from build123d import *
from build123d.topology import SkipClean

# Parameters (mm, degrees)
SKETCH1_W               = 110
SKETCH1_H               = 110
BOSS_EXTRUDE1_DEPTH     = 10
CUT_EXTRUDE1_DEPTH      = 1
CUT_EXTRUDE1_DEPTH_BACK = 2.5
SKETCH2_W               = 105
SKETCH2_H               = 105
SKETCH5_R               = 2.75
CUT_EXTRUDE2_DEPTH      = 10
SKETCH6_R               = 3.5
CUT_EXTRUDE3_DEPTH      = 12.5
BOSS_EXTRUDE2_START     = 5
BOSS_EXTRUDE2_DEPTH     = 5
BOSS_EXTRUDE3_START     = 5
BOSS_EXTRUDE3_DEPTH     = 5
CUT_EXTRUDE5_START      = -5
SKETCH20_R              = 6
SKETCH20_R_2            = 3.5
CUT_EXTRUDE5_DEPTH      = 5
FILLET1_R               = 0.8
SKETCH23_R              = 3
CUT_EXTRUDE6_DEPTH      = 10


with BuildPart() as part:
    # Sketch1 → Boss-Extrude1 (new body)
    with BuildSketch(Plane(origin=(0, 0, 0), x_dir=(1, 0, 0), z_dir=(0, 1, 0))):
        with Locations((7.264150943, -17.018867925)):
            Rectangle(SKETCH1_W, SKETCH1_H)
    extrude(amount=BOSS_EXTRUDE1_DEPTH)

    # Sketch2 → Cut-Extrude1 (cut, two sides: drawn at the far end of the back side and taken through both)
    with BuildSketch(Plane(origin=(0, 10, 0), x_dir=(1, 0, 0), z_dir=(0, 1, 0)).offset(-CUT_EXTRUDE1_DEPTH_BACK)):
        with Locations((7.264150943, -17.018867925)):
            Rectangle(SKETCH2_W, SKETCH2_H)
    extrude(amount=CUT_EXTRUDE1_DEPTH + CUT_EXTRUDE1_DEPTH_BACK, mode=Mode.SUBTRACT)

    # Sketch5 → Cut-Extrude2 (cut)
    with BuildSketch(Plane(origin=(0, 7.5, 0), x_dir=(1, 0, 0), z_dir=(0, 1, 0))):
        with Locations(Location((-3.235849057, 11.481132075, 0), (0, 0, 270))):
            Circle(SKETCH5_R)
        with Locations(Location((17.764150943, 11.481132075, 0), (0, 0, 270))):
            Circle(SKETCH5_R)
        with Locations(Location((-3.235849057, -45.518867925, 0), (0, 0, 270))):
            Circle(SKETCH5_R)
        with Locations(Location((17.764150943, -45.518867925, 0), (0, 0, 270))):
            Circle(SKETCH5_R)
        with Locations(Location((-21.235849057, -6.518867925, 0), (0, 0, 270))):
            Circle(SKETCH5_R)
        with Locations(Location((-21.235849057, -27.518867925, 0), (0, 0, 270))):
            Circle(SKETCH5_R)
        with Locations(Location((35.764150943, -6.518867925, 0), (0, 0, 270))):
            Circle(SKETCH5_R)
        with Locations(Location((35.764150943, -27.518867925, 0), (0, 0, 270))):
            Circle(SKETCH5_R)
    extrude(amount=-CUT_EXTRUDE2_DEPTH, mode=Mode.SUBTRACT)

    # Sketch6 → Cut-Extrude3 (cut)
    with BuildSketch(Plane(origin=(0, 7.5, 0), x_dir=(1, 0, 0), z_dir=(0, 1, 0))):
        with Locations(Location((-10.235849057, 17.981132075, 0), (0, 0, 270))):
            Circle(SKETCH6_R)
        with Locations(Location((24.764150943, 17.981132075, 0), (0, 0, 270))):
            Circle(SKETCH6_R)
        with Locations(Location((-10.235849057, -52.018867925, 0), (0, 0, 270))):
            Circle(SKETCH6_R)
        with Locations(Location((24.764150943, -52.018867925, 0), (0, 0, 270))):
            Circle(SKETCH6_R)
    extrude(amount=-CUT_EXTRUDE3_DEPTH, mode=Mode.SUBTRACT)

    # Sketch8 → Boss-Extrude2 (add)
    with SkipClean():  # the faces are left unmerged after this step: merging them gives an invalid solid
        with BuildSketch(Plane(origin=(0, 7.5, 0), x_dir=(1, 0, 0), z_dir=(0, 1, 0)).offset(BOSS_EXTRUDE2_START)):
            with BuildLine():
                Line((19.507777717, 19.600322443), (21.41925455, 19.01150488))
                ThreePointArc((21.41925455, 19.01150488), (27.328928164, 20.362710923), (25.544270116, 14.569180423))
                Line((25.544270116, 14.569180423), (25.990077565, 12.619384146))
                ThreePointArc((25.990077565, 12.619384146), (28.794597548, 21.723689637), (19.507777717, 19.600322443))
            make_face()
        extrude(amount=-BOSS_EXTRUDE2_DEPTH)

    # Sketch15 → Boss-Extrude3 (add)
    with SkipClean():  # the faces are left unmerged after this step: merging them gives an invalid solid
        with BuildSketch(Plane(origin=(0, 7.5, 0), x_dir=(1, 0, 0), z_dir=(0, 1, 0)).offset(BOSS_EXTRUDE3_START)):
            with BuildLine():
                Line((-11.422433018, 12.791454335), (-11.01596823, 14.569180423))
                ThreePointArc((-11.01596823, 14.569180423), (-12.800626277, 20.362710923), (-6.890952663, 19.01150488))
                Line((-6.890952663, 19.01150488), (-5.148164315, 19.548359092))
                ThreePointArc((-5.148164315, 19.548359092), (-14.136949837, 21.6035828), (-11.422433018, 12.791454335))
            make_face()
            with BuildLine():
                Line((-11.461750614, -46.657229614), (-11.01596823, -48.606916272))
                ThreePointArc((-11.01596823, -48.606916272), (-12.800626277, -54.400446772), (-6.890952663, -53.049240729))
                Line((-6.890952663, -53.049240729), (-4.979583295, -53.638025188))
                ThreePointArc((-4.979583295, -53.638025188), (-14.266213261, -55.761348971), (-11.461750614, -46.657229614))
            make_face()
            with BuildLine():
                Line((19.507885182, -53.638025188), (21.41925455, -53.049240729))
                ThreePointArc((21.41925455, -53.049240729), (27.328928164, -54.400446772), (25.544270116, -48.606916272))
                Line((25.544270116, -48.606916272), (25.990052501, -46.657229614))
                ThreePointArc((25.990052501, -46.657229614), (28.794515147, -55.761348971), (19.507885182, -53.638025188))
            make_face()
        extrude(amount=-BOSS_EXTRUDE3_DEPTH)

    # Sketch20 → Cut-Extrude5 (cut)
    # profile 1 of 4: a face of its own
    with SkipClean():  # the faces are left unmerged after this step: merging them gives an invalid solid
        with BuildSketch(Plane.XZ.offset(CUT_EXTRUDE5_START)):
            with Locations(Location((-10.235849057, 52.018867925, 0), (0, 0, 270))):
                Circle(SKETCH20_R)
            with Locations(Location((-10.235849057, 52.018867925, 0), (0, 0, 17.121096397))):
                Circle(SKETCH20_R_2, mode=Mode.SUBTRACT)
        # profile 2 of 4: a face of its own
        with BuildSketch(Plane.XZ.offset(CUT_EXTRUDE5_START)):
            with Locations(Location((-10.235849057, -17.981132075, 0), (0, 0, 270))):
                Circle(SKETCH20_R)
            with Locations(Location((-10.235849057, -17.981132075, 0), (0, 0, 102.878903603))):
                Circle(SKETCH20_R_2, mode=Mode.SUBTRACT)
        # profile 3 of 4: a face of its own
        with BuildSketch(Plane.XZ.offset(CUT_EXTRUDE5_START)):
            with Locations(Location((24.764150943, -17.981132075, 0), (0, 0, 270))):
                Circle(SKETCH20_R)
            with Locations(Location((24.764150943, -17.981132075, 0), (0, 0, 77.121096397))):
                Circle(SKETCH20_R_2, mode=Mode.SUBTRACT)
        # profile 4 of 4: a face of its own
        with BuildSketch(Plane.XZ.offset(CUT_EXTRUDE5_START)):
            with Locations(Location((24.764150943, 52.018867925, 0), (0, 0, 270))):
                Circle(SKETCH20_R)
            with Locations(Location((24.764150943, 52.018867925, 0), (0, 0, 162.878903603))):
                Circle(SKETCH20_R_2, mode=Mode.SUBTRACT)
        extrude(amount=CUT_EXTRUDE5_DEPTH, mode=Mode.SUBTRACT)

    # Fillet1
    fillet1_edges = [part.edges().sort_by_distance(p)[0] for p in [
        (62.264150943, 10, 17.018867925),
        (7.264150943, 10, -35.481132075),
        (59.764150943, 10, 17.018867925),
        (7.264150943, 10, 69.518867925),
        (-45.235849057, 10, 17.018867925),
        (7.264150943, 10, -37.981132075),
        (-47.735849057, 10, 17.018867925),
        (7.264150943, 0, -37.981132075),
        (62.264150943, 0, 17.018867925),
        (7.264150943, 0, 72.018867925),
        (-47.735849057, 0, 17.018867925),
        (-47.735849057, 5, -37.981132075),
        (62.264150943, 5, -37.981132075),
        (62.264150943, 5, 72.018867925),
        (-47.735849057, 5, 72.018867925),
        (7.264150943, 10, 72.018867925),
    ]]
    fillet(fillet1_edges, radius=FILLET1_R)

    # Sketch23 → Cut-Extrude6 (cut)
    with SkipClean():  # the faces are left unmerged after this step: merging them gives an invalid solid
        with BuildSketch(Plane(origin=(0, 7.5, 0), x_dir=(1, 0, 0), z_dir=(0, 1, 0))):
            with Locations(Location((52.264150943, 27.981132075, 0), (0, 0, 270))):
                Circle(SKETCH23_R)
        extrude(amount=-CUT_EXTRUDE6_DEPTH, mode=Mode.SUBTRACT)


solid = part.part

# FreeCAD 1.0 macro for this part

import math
import FreeCAD as App
import Part
import Sketcher

V = App.Vector


def edges_at(feature, points):
    """Names of the edges that pass closest to the given points."""
    edges = feature.Shape.Edges
    near = lambda p: min(range(len(edges)), key=lambda i: edges[i].distToShape(Part.Vertex(*p))[0])
    return sorted({f"Edge{near(p) + 1}" for p in points})

doc = App.newDocument("Part")
body = doc.addObject("PartDesign::Body", "Body")

# Sketch on XZ plane
sketch1 = doc.addObject("Sketcher::SketchObject", "Sketch")
body.addObject(sketch1)
sketch1.AttachmentSupport = (doc.XZ_Plane, [""])
sketch1.MapMode = "FlatFace"
sketch1.addGeometry([
    Part.LineSegment(V(-48, -38, 0), V(-48, 72, 0)),
    Part.LineSegment(V(-48, 72, 0), V(62, 72, 0)),
    Part.LineSegment(V(62, 72, 0), V(62, -38, 0)),
    Part.LineSegment(V(62, -38, 0), V(-48, -38, 0)),
], False)
sketch1.addConstraint([
    Sketcher.Constraint("Coincident", 0, 2, 1, 1),
    Sketcher.Constraint("Coincident", 1, 2, 2, 1),
    Sketcher.Constraint("Coincident", 2, 2, 3, 1),
    Sketcher.Constraint("Coincident", 3, 2, 0, 1),
    Sketcher.Constraint("Vertical", 0),
    Sketcher.Constraint("Horizontal", 1),
    Sketcher.Constraint("Vertical", 2),
    Sketcher.Constraint("Horizontal", 3),
    Sketcher.Constraint("Equal", 3, 0),
    Sketcher.Constraint("DistanceX", 1, 1, 1, 2, 110.0),
    Sketcher.Constraint("DistanceX", 0, 2, -1, 1, 47.735849),
    Sketcher.Constraint("DistanceY", -1, 1, 0, 2, 72.018868),
])
pad1 = doc.addObject("PartDesign::Pad", "Pad")
body.addObject(pad1)
pad1.Profile = sketch1
pad1.Length = 10
pad1.Reversed = True

# Sketch on XZ plane
sketch2 = doc.addObject("Sketcher::SketchObject", "Sketch001")
body.addObject(sketch2)
sketch2.AttachmentSupport = (doc.XZ_Plane, [""])
sketch2.MapMode = "FlatFace"
sketch2.AttachmentOffset = App.Placement(V(0, 0, -10), App.Rotation())
sketch2.addGeometry([
    Part.LineSegment(V(-45, -35, 0), V(-45, 70, 0)),
    Part.LineSegment(V(-45, 70, 0), V(60, 70, 0)),
    Part.LineSegment(V(60, 70, 0), V(60, -35, 0)),
    Part.LineSegment(V(60, -35, 0), V(-45, -35, 0)),
], False)
sketch2.addConstraint([
    Sketcher.Constraint("Coincident", 0, 2, 1, 1),
    Sketcher.Constraint("Coincident", 1, 2, 2, 1),
    Sketcher.Constraint("Coincident", 2, 2, 3, 1),
    Sketcher.Constraint("Coincident", 3, 2, 0, 1),
    Sketcher.Constraint("Vertical", 0),
    Sketcher.Constraint("Horizontal", 1),
    Sketcher.Constraint("Vertical", 2),
    Sketcher.Constraint("Horizontal", 3),
    Sketcher.Constraint("Equal", 3, 0),
    Sketcher.Constraint("DistanceX", 1, 1, 1, 2, 105.0),
    Sketcher.Constraint("DistanceX", 0, 2, -1, 1, 45.235849),
    Sketcher.Constraint("DistanceY", -1, 1, 0, 2, 69.518868),
])
pocket1 = doc.addObject("PartDesign::Pocket", "Pocket")
body.addObject(pocket1)
pocket1.Profile = sketch2
pocket1.Type = "TwoLengths"
pocket1.Length = 1
pocket1.Length2 = 2.5

# Sketch on XZ plane
sketch3 = doc.addObject("Sketcher::SketchObject", "Sketch002")
body.addObject(sketch3)
sketch3.AttachmentSupport = (doc.XZ_Plane, [""])
sketch3.MapMode = "FlatFace"
sketch3.AttachmentOffset = App.Placement(V(0, 0, -7.5), App.Rotation())
sketch3.addGeometry([
    Part.Circle(V(-3.2, -11.5, 0), V(0, 0, 1), 2.8),  # 0
    Part.Circle(V(17.8, -11.5, 0), V(0, 0, 1), 2.8),  # 1
    Part.Circle(V(-3.2, 45.5, 0), V(0, 0, 1), 2.8),  # 2
    Part.Circle(V(17.8, 45.5, 0), V(0, 0, 1), 2.8),  # 3
    Part.Circle(V(-21.2, 6.5, 0), V(0, 0, 1), 2.8),  # 4
    Part.Circle(V(-21.2, 27.5, 0), V(0, 0, 1), 2.8),  # 5
    Part.Circle(V(35.8, 6.5, 0), V(0, 0, 1), 2.8),  # 6
    Part.Circle(V(35.8, 27.5, 0), V(0, 0, 1), 2.8),  # 7
], False)
sketch3.addConstraint([
    Sketcher.Constraint("Equal", 0, 1),
    Sketcher.Constraint("Equal", 1, 2),
    Sketcher.Constraint("Equal", 2, 3),
    Sketcher.Constraint("Equal", 3, 4),
    Sketcher.Constraint("Equal", 4, 5),
    Sketcher.Constraint("Equal", 5, 6),
    Sketcher.Constraint("Equal", 6, 7),
    Sketcher.Constraint("Horizontal", 0, 3, 1, 3),
    Sketcher.Constraint("Horizontal", 2, 3, 3, 3),
    Sketcher.Constraint("Horizontal", 4, 3, 6, 3),
    Sketcher.Constraint("Horizontal", 5, 3, 7, 3),
    Sketcher.Constraint("Vertical", 0, 3, 2, 3),
    Sketcher.Constraint("Vertical", 1, 3, 3, 3),
    Sketcher.Constraint("Vertical", 4, 3, 5, 3),
    Sketcher.Constraint("Vertical", 6, 3, 7, 3),
    Sketcher.Constraint("Diameter", 0, 5.5),
    Sketcher.Constraint("DistanceX", 0, 3, 1, 3, 21.0),
    Sketcher.Constraint("DistanceY", 0, 3, 2, 3, 57.0),
    Sketcher.Constraint("DistanceX", 4, 3, 0, 3, 18.0),
    Sketcher.Constraint("DistanceY", 0, 3, 4, 3, 18.0),
    Sketcher.Constraint("DistanceY", 4, 3, 5, 3, 21.0),
    Sketcher.Constraint("DistanceX", 1, 3, 6, 3, 18.0),
    Sketcher.Constraint("DistanceX", 0, 3, -1, 1, 3.235849),
    Sketcher.Constraint("DistanceY", 0, 3, -1, 1, 11.481132),
])
pocket2 = doc.addObject("PartDesign::Pocket", "Pocket001")
body.addObject(pocket2)
pocket2.Profile = sketch3
pocket2.Length = 10
pocket2.Reversed = True

# Sketch on XZ plane
sketch4 = doc.addObject("Sketcher::SketchObject", "Sketch003")
body.addObject(sketch4)
sketch4.AttachmentSupport = (doc.XZ_Plane, [""])
sketch4.MapMode = "FlatFace"
sketch4.AttachmentOffset = App.Placement(V(0, 0, -7.5), App.Rotation())
sketch4.addGeometry([
    Part.Circle(V(-10.2, -18, 0), V(0, 0, 1), 3.5),
    Part.Circle(V(24.8, -18, 0), V(0, 0, 1), 3.5),
    Part.Circle(V(-10.2, 52, 0), V(0, 0, 1), 3.5),
    Part.Circle(V(24.8, 52, 0), V(0, 0, 1), 3.5),
], False)
sketch4.addConstraint([
    Sketcher.Constraint("Equal", 0, 1),
    Sketcher.Constraint("Equal", 1, 2),
    Sketcher.Constraint("Equal", 2, 3),
    Sketcher.Constraint("Horizontal", 0, 3, 1, 3),
    Sketcher.Constraint("Horizontal", 2, 3, 3, 3),
    Sketcher.Constraint("Vertical", 0, 3, 2, 3),
    Sketcher.Constraint("Vertical", 1, 3, 3, 3),
    Sketcher.Constraint("Diameter", 0, 7.0),
    Sketcher.Constraint("DistanceX", 0, 3, 1, 3, 35.0),
    Sketcher.Constraint("DistanceY", 0, 3, 2, 3, 70.0),
    Sketcher.Constraint("DistanceX", 0, 3, -1, 1, 10.235849),
    Sketcher.Constraint("DistanceY", 0, 3, -1, 1, 17.981132),
])
pocket3 = doc.addObject("PartDesign::Pocket", "Pocket002")
body.addObject(pocket3)
pocket3.Profile = sketch4
pocket3.Length = 12.5
pocket3.Reversed = True

# Sketch on XZ plane
sketch5 = doc.addObject("Sketcher::SketchObject", "Sketch004")
body.addObject(sketch5)
sketch5.AttachmentSupport = (doc.XZ_Plane, [""])
sketch5.MapMode = "FlatFace"
sketch5.AttachmentOffset = App.Placement(V(0, 0, -12.5), App.Rotation())
sketch5.addGeometry([
    Part.LineSegment(V(19.5, -19.6, 0), V(21.4, -19, 0)),
    Part.ArcOfCircle(Part.Circle(V(24.8, -18, 0), V(0, 0, 1), 3.5), math.radians(-163), math.radians(77)),
    Part.LineSegment(V(25.5, -14.6, 0), V(26, -12.6, 0)),
    Part.ArcOfCircle(Part.Circle(V(24.8, -18, 0), V(0, 0, 1), 5.5), math.radians(-163), math.radians(77)),
], False)
sketch5.addConstraint([
    Sketcher.Constraint("Coincident", 0, 2, 1, 1),
    Sketcher.Constraint("Coincident", 1, 2, 2, 1),
    Sketcher.Constraint("Coincident", 2, 2, 3, 2),
    Sketcher.Constraint("Coincident", 3, 1, 0, 1),
    Sketcher.Constraint("Coincident", 3, 3, 1, 3),
    Sketcher.Constraint("Radius", 1, 3.5),
    Sketcher.Constraint("Radius", 3, 5.500112),
    Sketcher.Constraint("DistanceX", 3, 1, 2, 2, 6.4823),
    Sketcher.Constraint("DistanceX", -1, 1, 1, 3, 24.764151),
    Sketcher.Constraint("DistanceX", -1, 1, 1, 2, 25.54427),
    Sketcher.Constraint("DistanceY", 1, 2, -1, 1, 14.56918),
    Sketcher.Constraint("DistanceY", 0, 2, 2, 2, 6.392121),
    Sketcher.Constraint("DistanceY", 3, 1, 1, 3, 1.61919),
])
pad2 = doc.addObject("PartDesign::Pad", "Pad001")
body.addObject(pad2)
pad2.Profile = sketch5
pad2.Length = 5

# Sketch on XZ plane
sketch6 = doc.addObject("Sketcher::SketchObject", "Sketch005")
body.addObject(sketch6)
sketch6.AttachmentSupport = (doc.XZ_Plane, [""])
sketch6.MapMode = "FlatFace"
sketch6.AttachmentOffset = App.Placement(V(0, 0, -12.5), App.Rotation())
sketch6.addGeometry([
    Part.LineSegment(V(-11.4, -12.8, 0), V(-11, -14.6, 0)),  # 0
    Part.ArcOfCircle(Part.Circle(V(-10.2, -18, 0), V(0, 0, 1), 3.5), math.radians(103), math.radians(343)),  # 1
    Part.LineSegment(V(-6.9, -19, 0), V(-5.1, -19.5, 0)),  # 2
    Part.ArcOfCircle(Part.Circle(V(-10.2, -18, 0), V(0, 0, 1), 5.3), math.radians(103), math.radians(343)),  # 3
    Part.LineSegment(V(-11, 48.6, 0), V(-11.5, 46.7, 0)),  # 4
    Part.ArcOfCircle(Part.Circle(V(-10.2, 52, 0), V(0, 0, 1), 5.5), math.radians(17), math.radians(257)),  # 5
    Part.LineSegment(V(-5, 53.6, 0), V(-6.9, 53, 0)),  # 6
    Part.ArcOfCircle(Part.Circle(V(-10.2, 52, 0), V(0, 0, 1), 3.5), math.radians(17), math.radians(257)),  # 7
    Part.LineSegment(V(21.4, 53, 0), V(19.5, 53.6, 0)),  # 8
    Part.ArcOfCircle(Part.Circle(V(24.8, 52, 0), V(0, 0, 1), 5.5), math.radians(-77), math.radians(163)),  # 9
    Part.LineSegment(V(26, 46.7, 0), V(25.5, 48.6, 0)),  # 10
    Part.ArcOfCircle(Part.Circle(V(24.8, 52, 0), V(0, 0, 1), 3.5), math.radians(-77), math.radians(163)),  # 11
], False)
sketch6.addConstraint([
    Sketcher.Constraint("Coincident", 0, 2, 1, 1),
    Sketcher.Constraint("Coincident", 1, 2, 2, 1),
    Sketcher.Constraint("Coincident", 2, 2, 3, 2),
    Sketcher.Constraint("Coincident", 3, 1, 0, 1),
    Sketcher.Constraint("Coincident", 4, 2, 5, 2),
    Sketcher.Constraint("Coincident", 5, 1, 6, 1),
    Sketcher.Constraint("Coincident", 6, 2, 7, 1),
    Sketcher.Constraint("Coincident", 7, 2, 4, 1),
    Sketcher.Constraint("Coincident", 8, 2, 9, 2),
    Sketcher.Constraint("Coincident", 9, 1, 10, 1),
    Sketcher.Constraint("Coincident", 10, 2, 11, 1),
    Sketcher.Constraint("Coincident", 11, 2, 8, 1),
    Sketcher.Constraint("Coincident", 3, 3, 1, 3),
    Sketcher.Constraint("Coincident", 7, 3, 5, 3),
    Sketcher.Constraint("Coincident", 11, 3, 9, 3),
    Sketcher.Constraint("Equal", 1, 7),
    Sketcher.Constraint("Equal", 5, 9),
    Sketcher.Constraint("Equal", 7, 11),
    Sketcher.Constraint("Parallel", 2, 8),
    Sketcher.Constraint("Parallel", 0, 10),
    Sketcher.Constraint("Horizontal", 7, 3, 9, 3),
    Sketcher.Constraint("Horizontal", 5, 1, 8, 2),
    Sketcher.Constraint("Horizontal", 4, 2, 9, 1),
    Sketcher.Constraint("Horizontal", 7, 2, 10, 2),
    Sketcher.Constraint("Horizontal", 6, 2, 11, 2),
    Sketcher.Constraint("Vertical", 3, 3, 5, 3),
    Sketcher.Constraint("Vertical", 1, 2, 6, 2),
    Sketcher.Constraint("Vertical", 0, 2, 7, 2),
    Sketcher.Constraint("Radius", 1, 3.5),
    Sketcher.Constraint("Radius", 5, 5.5),
    Sketcher.Constraint("DistanceY", 1, 3, 5, 3, 70.0),
    Sketcher.Constraint("DistanceX", 7, 3, 9, 3, 35.0),
    Sketcher.Constraint("Radius", 3, 5.323602),
    Sketcher.Constraint("DistanceX", 4, 2, 7, 3, 1.225902),
    Sketcher.Constraint("DistanceX", 1, 3, -1, 1, 10.235849),
    Sketcher.Constraint("DistanceX", 0, 2, -1, 1, 11.015968),
    Sketcher.Constraint("DistanceY", 0, 2, -1, 1, 14.56918),
    Sketcher.Constraint("DistanceY", 2, 2, -1, 1, 19.548359),
    Sketcher.Constraint("DistanceY", -1, 1, 6, 2, 53.049241),
])
pad3 = doc.addObject("PartDesign::Pad", "Pad002")
body.addObject(pad3)
pad3.Profile = sketch6
pad3.Length = 5

# Sketch on XZ plane
sketch7 = doc.addObject("Sketcher::SketchObject", "Sketch006")
body.addObject(sketch7)
sketch7.AttachmentSupport = (doc.XZ_Plane, [""])
sketch7.MapMode = "FlatFace"
sketch7.AttachmentOffset = App.Placement(V(0, 0, -5), App.Rotation())
sketch7.addGeometry([
    Part.Circle(V(-10.2, 52, 0), V(0, 0, 1), 6),  # 0
    Part.Circle(V(-10.2, 52, 0), V(0, 0, 1), 3.5),  # 1
    Part.Circle(V(-10.2, -18, 0), V(0, 0, 1), 6),  # 2
    Part.Circle(V(-10.2, -18, 0), V(0, 0, 1), 3.5),  # 3
    Part.Circle(V(24.8, -18, 0), V(0, 0, 1), 6),  # 4
    Part.Circle(V(24.8, -18, 0), V(0, 0, 1), 3.5),  # 5
    Part.Circle(V(24.8, 52, 0), V(0, 0, 1), 6),  # 6
    Part.Circle(V(24.8, 52, 0), V(0, 0, 1), 3.5),  # 7
], False)
sketch7.addConstraint([
    Sketcher.Constraint("Coincident", 1, 3, 0, 3),
    Sketcher.Constraint("Coincident", 3, 3, 2, 3),
    Sketcher.Constraint("Coincident", 5, 3, 4, 3),
    Sketcher.Constraint("Coincident", 7, 3, 6, 3),
    Sketcher.Constraint("Equal", 0, 2),
    Sketcher.Constraint("Equal", 1, 3),
    Sketcher.Constraint("Equal", 2, 4),
    Sketcher.Constraint("Equal", 3, 5),
    Sketcher.Constraint("Equal", 4, 6),
    Sketcher.Constraint("Equal", 5, 7),
    Sketcher.Constraint("Horizontal", 3, 3, 4, 3),
    Sketcher.Constraint("Horizontal", 1, 3, 6, 3),
    Sketcher.Constraint("Vertical", 1, 3, 2, 3),
    Sketcher.Constraint("Vertical", 5, 3, 6, 3),
    Sketcher.Constraint("Diameter", 0, 12.0),
    Sketcher.Constraint("Diameter", 1, 7.0),
    Sketcher.Constraint("DistanceY", 2, 3, 0, 3, 70.0),
    Sketcher.Constraint("DistanceX", 2, 3, 4, 3, 35.0),
    Sketcher.Constraint("DistanceX", 0, 3, -1, 1, 10.235849),
    Sketcher.Constraint("DistanceY", -1, 1, 0, 3, 52.018868),
])
pocket4 = doc.addObject("PartDesign::Pocket", "Pocket003")
body.addObject(pocket4)
pocket4.Profile = sketch7
pocket4.Length = 5
pocket4.Reversed = True
doc.recompute()

fillet = doc.addObject("PartDesign::Fillet", "Fillet")
body.addObject(fillet)
fillet.Base = (pocket4, edges_at(pocket4, [
    (62.264, 10, 17.019),
    (7.264, 10, -35.481),
    (59.764, 10, 17.019),
    (7.264, 10, 69.519),
    (-45.236, 10, 17.019),
    (7.264, 10, -37.981),
    (-47.736, 10, 17.019),
    (7.264, 0, -37.981),
    (62.264, 0, 17.019),
    (7.264, 0, 72.019),
    (-47.736, 0, 17.019),
    (-47.736, 5, -37.981),
    (62.264, 5, -37.981),
    (62.264, 5, 72.019),
    (-47.736, 5, 72.019),
    (7.264, 10, 72.019),
]))
fillet.Radius = 0.8

# Sketch on XZ plane
sketch8 = doc.addObject("Sketcher::SketchObject", "Sketch007")
body.addObject(sketch8)
sketch8.AttachmentSupport = (doc.XZ_Plane, [""])
sketch8.MapMode = "FlatFace"
sketch8.AttachmentOffset = App.Placement(V(0, 0, -7.5), App.Rotation())
sketch8.addGeometry(Part.Circle(V(52.3, -28, 0), V(0, 0, 1), 3), False)
sketch8.addConstraint([
    Sketcher.Constraint("Diameter", 0, 6.0),
    Sketcher.Constraint("DistanceX", -1, 1, 0, 3, 52.264151),
    Sketcher.Constraint("DistanceY", 0, 3, -1, 1, 27.981132),
])
pocket5 = doc.addObject("PartDesign::Pocket", "Pocket004")
body.addObject(pocket5)
pocket5.Profile = sketch8
pocket5.Length = 10
pocket5.Reversed = True

doc.recompute()
